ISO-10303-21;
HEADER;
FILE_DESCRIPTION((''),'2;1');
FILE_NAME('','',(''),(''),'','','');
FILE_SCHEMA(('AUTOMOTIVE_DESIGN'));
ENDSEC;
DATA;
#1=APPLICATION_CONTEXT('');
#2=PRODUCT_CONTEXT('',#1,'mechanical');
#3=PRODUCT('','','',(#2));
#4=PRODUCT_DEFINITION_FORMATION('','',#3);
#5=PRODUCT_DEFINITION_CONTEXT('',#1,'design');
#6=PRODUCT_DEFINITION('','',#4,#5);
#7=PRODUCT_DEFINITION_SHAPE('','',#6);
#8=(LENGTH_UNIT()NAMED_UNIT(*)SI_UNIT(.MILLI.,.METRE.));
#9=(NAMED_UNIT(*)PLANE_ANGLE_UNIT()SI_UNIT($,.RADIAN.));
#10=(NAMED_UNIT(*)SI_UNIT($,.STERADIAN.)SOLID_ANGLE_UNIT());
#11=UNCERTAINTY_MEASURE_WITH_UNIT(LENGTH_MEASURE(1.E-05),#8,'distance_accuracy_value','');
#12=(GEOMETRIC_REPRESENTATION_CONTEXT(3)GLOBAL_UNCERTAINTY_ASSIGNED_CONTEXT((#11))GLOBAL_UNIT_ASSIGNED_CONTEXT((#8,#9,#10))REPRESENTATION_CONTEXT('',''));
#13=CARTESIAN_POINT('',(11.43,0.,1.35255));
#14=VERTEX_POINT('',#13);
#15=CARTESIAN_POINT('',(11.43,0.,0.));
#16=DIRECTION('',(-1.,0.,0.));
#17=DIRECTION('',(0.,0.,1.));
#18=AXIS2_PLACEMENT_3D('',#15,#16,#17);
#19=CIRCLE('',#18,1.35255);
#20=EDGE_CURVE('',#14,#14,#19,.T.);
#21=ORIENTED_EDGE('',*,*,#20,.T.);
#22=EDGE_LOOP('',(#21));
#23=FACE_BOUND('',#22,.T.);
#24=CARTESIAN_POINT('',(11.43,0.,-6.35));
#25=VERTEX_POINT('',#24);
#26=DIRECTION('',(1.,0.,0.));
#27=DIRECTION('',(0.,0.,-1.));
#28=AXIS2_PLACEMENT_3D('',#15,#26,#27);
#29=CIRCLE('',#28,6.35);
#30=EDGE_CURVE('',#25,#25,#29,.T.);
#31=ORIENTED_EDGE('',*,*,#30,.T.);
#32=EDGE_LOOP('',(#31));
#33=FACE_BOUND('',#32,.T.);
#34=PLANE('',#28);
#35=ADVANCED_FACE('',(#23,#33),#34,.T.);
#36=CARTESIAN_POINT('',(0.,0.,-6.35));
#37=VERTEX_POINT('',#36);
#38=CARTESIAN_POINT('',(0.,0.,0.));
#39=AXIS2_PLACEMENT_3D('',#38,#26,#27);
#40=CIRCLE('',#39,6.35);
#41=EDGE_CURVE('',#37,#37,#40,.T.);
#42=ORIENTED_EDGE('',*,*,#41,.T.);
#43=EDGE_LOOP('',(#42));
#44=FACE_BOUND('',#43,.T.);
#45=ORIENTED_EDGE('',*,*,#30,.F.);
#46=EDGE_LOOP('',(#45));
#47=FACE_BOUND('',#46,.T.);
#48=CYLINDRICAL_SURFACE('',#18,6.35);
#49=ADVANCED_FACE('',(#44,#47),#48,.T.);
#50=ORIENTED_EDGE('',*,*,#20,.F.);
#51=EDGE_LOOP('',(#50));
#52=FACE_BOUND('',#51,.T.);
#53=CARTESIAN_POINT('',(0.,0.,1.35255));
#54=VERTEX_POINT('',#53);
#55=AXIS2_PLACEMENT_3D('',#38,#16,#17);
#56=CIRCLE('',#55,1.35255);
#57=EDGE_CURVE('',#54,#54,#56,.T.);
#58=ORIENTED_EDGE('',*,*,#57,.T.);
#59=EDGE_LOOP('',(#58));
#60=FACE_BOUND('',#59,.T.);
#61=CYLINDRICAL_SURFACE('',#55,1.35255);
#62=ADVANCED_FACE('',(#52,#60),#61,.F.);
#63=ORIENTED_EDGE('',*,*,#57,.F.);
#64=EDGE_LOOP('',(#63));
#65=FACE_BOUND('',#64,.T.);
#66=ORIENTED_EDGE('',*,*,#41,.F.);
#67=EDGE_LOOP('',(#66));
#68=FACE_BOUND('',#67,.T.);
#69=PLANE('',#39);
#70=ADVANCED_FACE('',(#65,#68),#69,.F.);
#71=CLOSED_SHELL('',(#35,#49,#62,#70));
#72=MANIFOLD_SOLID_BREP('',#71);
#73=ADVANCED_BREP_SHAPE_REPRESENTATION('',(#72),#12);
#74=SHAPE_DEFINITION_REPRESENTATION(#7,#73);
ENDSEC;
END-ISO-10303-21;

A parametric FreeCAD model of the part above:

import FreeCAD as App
import Part
import Sketcher
Q = App.Units.Quantity

doc = App.newDocument("Part")
body = doc.addObject("PartDesign::Body", "Body")

# Sketch on YZ plane
sketch1 = body.newObject("Sketcher::SketchObject", "Sketch")
sketch1.AttachmentSupport = (doc.getObject("YZ_Plane"), [""])
sketch1.MapMode = "FlatFace"
sketch1.addGeometry(Part.Circle(App.Vector(0, 0, 0), App.Vector(0, 0, 1), 6), False)
sketch1.addConstraint(Sketcher.Constraint("Coincident", 0, 3, -1, 1))
sketch1.addConstraint(Sketcher.Constraint("Diameter", 0, Q("0.5 in")))
pad1 = body.newObject("PartDesign::Pad", "Pad")
pad1.Profile = sketch1
pad1.Length = Q("0.45 in")

# Sketch on YZ plane
sketch2 = body.newObject("Sketcher::SketchObject", "Sketch001")
sketch2.AttachmentSupport = (doc.getObject("YZ_Plane"), [""])
sketch2.MapMode = "FlatFace"
sketch2.addGeometry(Part.Circle(App.Vector(0, 0, 0), App.Vector(0, 0, 1), 1.4), False)
sketch2.addConstraint(Sketcher.Constraint("Coincident", 0, 3, -1, 1))
sketch2.addConstraint(Sketcher.Constraint("Diameter", 0, Q("0.1065 in")))
doc.recompute()
hole = body.newObject("PartDesign::Hole", "Hole")
hole.Profile = sketch2
hole.ThreadType = "None"
hole.Diameter = Q("0.1065 in")
hole.DepthType = "ThroughAll"
hole.Reversed = True

doc.recompute()
